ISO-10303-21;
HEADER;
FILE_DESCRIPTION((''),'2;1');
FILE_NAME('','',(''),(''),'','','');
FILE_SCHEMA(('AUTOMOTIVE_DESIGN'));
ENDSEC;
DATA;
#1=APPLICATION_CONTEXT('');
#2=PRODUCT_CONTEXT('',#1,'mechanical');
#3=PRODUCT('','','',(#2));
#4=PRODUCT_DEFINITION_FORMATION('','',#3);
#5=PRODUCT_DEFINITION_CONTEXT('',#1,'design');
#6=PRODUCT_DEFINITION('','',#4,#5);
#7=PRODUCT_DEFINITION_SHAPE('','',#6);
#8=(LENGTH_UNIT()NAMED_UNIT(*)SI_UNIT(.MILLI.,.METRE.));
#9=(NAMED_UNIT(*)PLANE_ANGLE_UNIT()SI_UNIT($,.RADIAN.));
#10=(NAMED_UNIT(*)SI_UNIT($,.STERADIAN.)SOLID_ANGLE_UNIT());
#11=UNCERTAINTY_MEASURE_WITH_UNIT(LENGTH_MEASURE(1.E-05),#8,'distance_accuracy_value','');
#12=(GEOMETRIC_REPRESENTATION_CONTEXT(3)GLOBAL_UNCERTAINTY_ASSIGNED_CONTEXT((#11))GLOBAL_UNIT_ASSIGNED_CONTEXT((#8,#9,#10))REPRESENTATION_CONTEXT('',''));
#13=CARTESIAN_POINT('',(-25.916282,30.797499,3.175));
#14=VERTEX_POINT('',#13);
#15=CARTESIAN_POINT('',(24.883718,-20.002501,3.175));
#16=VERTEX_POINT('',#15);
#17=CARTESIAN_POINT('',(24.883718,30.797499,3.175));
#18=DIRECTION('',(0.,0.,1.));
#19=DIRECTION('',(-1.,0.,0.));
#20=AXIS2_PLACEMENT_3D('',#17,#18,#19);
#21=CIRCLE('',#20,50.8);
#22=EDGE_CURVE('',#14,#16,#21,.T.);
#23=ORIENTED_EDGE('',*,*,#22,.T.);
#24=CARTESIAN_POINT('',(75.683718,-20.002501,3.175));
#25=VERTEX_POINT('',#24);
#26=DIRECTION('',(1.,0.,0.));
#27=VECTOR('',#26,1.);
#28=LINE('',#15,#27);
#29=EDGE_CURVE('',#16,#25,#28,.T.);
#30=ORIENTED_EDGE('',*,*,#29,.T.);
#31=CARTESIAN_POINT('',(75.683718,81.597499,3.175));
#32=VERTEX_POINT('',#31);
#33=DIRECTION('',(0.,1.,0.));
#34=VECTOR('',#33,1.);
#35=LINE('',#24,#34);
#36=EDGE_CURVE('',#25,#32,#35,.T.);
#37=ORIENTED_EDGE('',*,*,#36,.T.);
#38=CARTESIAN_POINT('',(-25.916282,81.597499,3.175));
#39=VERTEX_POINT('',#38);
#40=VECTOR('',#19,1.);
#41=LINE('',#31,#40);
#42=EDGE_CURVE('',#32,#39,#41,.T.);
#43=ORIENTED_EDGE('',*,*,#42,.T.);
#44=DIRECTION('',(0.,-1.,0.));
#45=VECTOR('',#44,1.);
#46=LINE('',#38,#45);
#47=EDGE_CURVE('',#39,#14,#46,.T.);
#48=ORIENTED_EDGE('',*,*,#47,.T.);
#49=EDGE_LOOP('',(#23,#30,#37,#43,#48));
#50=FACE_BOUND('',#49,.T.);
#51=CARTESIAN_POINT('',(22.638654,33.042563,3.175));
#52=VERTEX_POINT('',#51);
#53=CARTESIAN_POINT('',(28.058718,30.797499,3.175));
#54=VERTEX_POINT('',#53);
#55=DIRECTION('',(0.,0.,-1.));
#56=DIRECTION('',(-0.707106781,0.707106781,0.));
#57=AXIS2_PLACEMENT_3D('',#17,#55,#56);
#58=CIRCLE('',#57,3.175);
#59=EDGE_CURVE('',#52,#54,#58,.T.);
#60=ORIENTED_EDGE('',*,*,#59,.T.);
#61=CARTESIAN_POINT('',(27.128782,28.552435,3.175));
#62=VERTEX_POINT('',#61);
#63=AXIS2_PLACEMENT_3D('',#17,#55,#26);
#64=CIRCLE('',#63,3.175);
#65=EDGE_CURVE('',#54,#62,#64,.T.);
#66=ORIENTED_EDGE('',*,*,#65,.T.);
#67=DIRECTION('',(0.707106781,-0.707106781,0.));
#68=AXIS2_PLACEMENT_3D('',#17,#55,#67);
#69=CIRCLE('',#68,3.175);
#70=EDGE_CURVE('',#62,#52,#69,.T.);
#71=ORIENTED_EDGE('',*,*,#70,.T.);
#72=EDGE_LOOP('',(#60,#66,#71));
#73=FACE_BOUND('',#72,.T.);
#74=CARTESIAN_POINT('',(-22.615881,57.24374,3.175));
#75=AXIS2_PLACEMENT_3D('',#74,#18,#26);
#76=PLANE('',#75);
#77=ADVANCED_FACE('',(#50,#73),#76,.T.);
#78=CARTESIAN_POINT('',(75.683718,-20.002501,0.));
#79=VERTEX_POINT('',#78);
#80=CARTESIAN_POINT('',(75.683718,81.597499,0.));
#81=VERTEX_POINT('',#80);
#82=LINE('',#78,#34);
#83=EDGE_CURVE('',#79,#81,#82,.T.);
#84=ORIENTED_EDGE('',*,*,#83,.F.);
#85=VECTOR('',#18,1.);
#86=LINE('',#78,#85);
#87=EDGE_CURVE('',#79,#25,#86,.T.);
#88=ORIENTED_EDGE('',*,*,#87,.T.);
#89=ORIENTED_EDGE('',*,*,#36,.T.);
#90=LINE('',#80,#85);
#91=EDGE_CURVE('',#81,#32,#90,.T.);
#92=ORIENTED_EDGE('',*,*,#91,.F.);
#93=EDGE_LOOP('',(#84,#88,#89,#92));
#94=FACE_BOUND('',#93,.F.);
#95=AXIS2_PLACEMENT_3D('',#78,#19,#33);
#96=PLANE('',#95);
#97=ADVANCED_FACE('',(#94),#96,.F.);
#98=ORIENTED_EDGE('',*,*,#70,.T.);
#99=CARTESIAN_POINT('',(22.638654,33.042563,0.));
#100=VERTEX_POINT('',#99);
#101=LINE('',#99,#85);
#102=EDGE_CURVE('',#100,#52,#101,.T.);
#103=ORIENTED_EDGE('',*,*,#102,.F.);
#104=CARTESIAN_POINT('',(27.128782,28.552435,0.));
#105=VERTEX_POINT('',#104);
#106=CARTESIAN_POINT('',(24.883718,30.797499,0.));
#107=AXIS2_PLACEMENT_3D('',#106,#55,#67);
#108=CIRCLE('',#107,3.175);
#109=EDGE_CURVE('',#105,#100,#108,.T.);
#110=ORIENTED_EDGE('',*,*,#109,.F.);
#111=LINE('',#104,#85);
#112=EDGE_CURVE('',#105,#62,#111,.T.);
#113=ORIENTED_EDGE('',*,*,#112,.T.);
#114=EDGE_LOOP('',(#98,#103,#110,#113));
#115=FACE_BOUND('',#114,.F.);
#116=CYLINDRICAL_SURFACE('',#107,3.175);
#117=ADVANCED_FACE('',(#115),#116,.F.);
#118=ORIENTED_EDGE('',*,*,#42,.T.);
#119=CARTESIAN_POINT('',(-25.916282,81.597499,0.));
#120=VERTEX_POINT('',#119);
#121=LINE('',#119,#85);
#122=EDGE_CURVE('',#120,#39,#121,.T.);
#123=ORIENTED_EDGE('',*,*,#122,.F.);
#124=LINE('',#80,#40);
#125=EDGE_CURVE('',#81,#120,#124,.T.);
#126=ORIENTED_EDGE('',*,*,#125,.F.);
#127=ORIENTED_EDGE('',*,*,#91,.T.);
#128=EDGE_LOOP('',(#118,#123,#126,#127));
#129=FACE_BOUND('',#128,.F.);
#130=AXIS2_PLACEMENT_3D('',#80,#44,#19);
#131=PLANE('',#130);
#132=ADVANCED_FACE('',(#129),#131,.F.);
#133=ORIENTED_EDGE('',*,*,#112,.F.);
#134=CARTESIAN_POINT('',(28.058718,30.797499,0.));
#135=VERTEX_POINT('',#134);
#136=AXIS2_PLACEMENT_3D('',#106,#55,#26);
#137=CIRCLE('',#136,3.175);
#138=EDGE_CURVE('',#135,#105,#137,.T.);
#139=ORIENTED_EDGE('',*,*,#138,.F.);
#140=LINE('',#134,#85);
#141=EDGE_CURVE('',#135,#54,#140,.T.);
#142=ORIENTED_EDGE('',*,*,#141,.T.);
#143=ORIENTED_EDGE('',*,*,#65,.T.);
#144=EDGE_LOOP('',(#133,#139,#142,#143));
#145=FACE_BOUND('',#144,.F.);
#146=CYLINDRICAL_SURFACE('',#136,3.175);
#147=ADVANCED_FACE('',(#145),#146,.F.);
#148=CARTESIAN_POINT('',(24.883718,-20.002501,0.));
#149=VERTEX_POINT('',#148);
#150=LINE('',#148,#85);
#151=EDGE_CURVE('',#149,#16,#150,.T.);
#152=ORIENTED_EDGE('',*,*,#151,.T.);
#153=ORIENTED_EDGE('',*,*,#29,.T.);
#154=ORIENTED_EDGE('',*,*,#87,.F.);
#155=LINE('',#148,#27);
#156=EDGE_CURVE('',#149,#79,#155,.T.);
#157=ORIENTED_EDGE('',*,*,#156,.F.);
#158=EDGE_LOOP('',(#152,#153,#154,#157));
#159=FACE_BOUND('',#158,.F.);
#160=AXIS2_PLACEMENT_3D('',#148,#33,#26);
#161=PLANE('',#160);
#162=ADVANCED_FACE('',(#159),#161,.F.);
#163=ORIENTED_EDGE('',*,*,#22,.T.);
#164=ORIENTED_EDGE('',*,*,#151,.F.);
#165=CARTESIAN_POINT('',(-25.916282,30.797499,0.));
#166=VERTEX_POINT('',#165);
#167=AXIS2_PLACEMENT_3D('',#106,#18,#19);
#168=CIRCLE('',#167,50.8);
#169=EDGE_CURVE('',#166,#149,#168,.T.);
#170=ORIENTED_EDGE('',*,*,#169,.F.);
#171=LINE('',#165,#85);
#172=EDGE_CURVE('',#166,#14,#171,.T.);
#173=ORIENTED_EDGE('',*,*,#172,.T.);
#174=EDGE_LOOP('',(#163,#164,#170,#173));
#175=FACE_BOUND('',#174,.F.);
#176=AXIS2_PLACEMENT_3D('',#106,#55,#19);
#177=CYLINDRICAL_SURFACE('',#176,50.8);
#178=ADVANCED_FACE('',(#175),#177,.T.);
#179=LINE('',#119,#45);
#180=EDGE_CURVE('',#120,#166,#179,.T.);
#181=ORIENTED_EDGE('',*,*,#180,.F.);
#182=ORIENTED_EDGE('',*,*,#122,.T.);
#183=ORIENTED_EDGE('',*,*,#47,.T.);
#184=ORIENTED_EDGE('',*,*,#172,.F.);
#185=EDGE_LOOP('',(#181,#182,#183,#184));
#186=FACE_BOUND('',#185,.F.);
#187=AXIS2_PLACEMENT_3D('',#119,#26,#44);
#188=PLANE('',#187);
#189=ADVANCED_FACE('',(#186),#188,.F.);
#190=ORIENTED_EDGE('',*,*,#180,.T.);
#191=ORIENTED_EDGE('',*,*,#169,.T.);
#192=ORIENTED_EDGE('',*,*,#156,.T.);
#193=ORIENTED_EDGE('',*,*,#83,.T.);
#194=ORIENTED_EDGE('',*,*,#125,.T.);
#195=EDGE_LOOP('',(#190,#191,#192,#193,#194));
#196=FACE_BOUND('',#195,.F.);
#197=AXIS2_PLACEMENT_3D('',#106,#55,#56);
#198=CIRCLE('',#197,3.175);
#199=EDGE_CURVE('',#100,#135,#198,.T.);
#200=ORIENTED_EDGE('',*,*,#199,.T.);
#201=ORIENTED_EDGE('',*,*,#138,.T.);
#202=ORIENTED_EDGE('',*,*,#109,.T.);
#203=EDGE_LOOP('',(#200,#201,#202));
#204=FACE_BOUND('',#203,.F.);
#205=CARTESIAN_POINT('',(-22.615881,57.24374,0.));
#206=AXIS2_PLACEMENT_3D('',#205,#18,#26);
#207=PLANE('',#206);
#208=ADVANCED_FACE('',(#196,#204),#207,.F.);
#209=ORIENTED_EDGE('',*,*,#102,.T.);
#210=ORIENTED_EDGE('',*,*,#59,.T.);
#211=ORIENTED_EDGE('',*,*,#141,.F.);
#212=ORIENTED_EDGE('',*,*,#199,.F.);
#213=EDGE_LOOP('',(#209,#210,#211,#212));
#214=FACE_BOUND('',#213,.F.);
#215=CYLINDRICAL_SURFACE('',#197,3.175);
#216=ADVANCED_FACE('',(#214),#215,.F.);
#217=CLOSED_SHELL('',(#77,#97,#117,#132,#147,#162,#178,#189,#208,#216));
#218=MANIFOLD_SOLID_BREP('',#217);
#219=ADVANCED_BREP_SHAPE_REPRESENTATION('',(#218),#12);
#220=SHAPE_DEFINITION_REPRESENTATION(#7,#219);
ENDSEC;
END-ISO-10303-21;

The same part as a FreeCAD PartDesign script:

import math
import FreeCAD as App
import Part
import Sketcher
from FreeCAD import Vector
Q = App.Units.Quantity

doc = App.newDocument("Part")
params = doc.addObject("Spreadsheet::Sheet", "Params")
for row, (alias, value) in enumerate([
    ("sketch1_radius", "2 in"),
    ("sketch1_width", "2 in"),
    ("sketch1_radius2", "0.125 in"),
    ("pad1_length", "0.125 in"),
], start=1):
    params.set(f"A{row}", alias)
    params.set(f"B{row}", "=" + value)
    params.setAlias(f"B{row}", alias)

body = doc.addObject("PartDesign::Body", "Body")

sketch1 = body.newObject("Sketcher::SketchObject", "Sketch")
sketch1.AttachmentSupport = (doc.getObject("XY_Plane"), [""])
sketch1.MapMode = "FlatFace"
sketch1.addGeometry([
    Part.LineSegment(Vector(-25.916282, 81.597499, 0), Vector(-25.916282, 30.797499, 0)),
    Part.ArcOfCircle(Part.Circle(Vector(24.883718, 30.797499, 0), Vector(0, 0, 1), 50.8), math.radians(180), math.radians(270)),
    Part.LineSegment(Vector(24.883718, -20.002501, 0), Vector(75.683718, -20.002501, 0)),
    Part.LineSegment(Vector(75.683718, -20.002501, 0), Vector(75.683718, 81.597499, 0)),
    Part.LineSegment(Vector(75.683718, 81.597499, 0), Vector(-25.916282, 81.597499, 0)),
    Part.ArcOfCircle(Part.Circle(Vector(24.883718, 30.797499, 0), Vector(0, 0, 1), 3.175), math.radians(135), math.radians(315)),
    Part.ArcOfCircle(Part.Circle(Vector(24.883718, 30.797499, 0), Vector(0, 0, 1), 3.175), math.radians(0), math.radians(135)),
    Part.ArcOfCircle(Part.Circle(Vector(24.883718, 30.797499, 0), Vector(0, 0, 1), 3.175), math.radians(-45), math.radians(0)),
], False)
sketch1.addConstraint([
    Sketcher.Constraint("Tangent", 0, 2, 1, 1),
    Sketcher.Constraint("Tangent", 1, 2, 2, 1),
    Sketcher.Constraint("Coincident", 2, 2, 3, 1),
    Sketcher.Constraint("Coincident", 3, 2, 4, 1),
    Sketcher.Constraint("Coincident", 4, 2, 0, 1),
    Sketcher.Constraint("Tangent", 5, 1, 6, 2),
    Sketcher.Constraint("Tangent", 6, 1, 7, 2),
    Sketcher.Constraint("Tangent", 7, 1, 5, 2),
    Sketcher.Constraint("Vertical", 0),
    Sketcher.Constraint("Horizontal", 2),
    Sketcher.Constraint("Vertical", 3),
    Sketcher.Constraint("Horizontal", 4),
    Sketcher.Constraint("Coincident", 5, 3, 1, 3),
    Sketcher.Constraint("Horizontal", 0, 2, 6, 1),
    Sketcher.Constraint("Equal", 2, 0),
    Sketcher.Constraint("Radius", 1, Q("2 in")),
    Sketcher.Constraint("DistanceX", 2, 1, 2, 2, Q("2 in")),
    Sketcher.Constraint("Radius", 5, Q("0.125 in")),
    Sketcher.Constraint("DistanceY", -1, 1, 1, 3, Q("1.2125 in")),
    Sketcher.Constraint("DistanceX", -1, 1, 7, 1, 27.128782),
    Sketcher.Constraint("DistanceX", -1, 1, 1, 3, 24.883718),
    Sketcher.Constraint("DistanceX", -1, 1, 5, 1, 22.638654),
])
sketch1.setExpression("Constraints[15]", "Params.sketch1_radius")
sketch1.setExpression("Constraints[16]", "Params.sketch1_width")
sketch1.setExpression("Constraints[17]", "Params.sketch1_radius2")
pad1 = body.newObject("PartDesign::Pad", "Pad")
pad1.Profile = sketch1
pad1.setExpression("Length", "Params.pad1_length")

doc.recompute()
